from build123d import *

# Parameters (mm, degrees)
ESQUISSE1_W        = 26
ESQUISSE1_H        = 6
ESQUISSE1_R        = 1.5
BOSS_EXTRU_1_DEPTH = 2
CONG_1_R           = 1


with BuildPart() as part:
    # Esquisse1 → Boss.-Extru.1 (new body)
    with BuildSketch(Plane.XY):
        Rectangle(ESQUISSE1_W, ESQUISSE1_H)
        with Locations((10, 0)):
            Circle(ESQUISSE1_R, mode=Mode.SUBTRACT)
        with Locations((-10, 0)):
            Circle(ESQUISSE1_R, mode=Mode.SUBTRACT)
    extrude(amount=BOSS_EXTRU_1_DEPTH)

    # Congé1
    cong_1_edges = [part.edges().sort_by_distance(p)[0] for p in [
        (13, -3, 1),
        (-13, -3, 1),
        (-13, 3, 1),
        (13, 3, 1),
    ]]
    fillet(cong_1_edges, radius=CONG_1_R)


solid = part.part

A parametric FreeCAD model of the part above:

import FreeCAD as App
import Part
import Sketcher
from FreeCAD import Vector


def edges_at(feature, points):
    """Names of the edges that pass closest to the given points."""
    edges = feature.Shape.Edges
    near = lambda p: min(range(len(edges)), key=lambda i: edges[i].distToShape(Part.Vertex(*p))[0])
    return sorted({f"Edge{near(p) + 1}" for p in points})

doc = App.newDocument("Part")
params = doc.addObject("Spreadsheet::Sheet", "Params")
for row, (alias, value) in enumerate([
    ("sketch1_diameter", "3 mm"),
    ("sketch1_width", "26 mm"),
    ("sketch1_height", "6 mm"),
    ("pad1_length", "2 mm"),
    ("fillet_radius", "1 mm"),
], start=1):
    params.set(f"A{row}", alias)
    params.set(f"B{row}", "=" + value)
    params.setAlias(f"B{row}", alias)

body = doc.addObject("PartDesign::Body", "Body")

# Sketch on XY plane
sketch1 = body.newObject("Sketcher::SketchObject", "Sketch")
sketch1.AttachmentSupport = (doc.getObject("XY_Plane"), [""])
sketch1.MapMode = "FlatFace"
sketch1.addGeometry(Part.LineSegment(Vector(-13, 3, 0), Vector(-13, -3, 0)), False)
sketch1.addGeometry(Part.LineSegment(Vector(-13, -3, 0), Vector(13, -3, 0)), False)
sketch1.addGeometry(Part.LineSegment(Vector(13, -3, 0), Vector(13, 3, 0)), False)
sketch1.addGeometry(Part.LineSegment(Vector(13, 3, 0), Vector(-13, 3, 0)), False)
sketch1.addGeometry(Part.Circle(Vector(-10, 0, 0), Vector(0, 0, 1), 1.5), False)
sketch1.addGeometry(Part.Circle(Vector(10, 0, 0), Vector(0, 0, 1), 1.5), False)
sketch1.addConstraint(Sketcher.Constraint("Coincident", 0, 2, 1, 1))
sketch1.addConstraint(Sketcher.Constraint("Coincident", 1, 2, 2, 1))
sketch1.addConstraint(Sketcher.Constraint("Coincident", 2, 2, 3, 1))
sketch1.addConstraint(Sketcher.Constraint("Coincident", 3, 2, 0, 1))
sketch1.addConstraint(Sketcher.Constraint("Vertical", 0))
sketch1.addConstraint(Sketcher.Constraint("Horizontal", 1))
sketch1.addConstraint(Sketcher.Constraint("Vertical", 2))
sketch1.addConstraint(Sketcher.Constraint("Horizontal", 3))
sketch1.addConstraint(Sketcher.Constraint("Equal", 4, 5))
sketch1.addConstraint(Sketcher.Constraint("Symmetric", 4, 3, 5, 3, -1, 1))
sketch1.addConstraint(Sketcher.Constraint("Symmetric", 0, 2, 2, 2, -1, 1))
sketch1.addConstraint(Sketcher.Constraint("PointOnObject", 4, 3, -1))
sketch1.addConstraint(Sketcher.Constraint("Diameter", 4, 3.0))
sketch1.addConstraint(Sketcher.Constraint("DistanceX", 1, 1, 1, 2, 26.0))
sketch1.addConstraint(Sketcher.Constraint("DistanceY", 0, 2, 0, 1, 6.0))
sketch1.addConstraint(Sketcher.Constraint("DistanceX", 4, 3, -1, 1, 10.0))
sketch1.setExpression("Constraints[12]", "Params.sketch1_diameter")
sketch1.setExpression("Constraints[13]", "Params.sketch1_width")
sketch1.setExpression("Constraints[14]", "Params.sketch1_height")
pad1 = body.newObject("PartDesign::Pad", "Pad")
pad1.Profile = sketch1
pad1.setExpression("Length", "Params.pad1_length")
doc.recompute()

fillet = body.newObject("PartDesign::Fillet", "Fillet")
fillet.Base = (pad1, edges_at(pad1, [
    (13, -3, 1),
    (-13, -3, 1),
    (-13, 3, 1),
    (13, 3, 1),
]))
fillet.setExpression("Radius", "Params.fillet_radius")

doc.recompute()
